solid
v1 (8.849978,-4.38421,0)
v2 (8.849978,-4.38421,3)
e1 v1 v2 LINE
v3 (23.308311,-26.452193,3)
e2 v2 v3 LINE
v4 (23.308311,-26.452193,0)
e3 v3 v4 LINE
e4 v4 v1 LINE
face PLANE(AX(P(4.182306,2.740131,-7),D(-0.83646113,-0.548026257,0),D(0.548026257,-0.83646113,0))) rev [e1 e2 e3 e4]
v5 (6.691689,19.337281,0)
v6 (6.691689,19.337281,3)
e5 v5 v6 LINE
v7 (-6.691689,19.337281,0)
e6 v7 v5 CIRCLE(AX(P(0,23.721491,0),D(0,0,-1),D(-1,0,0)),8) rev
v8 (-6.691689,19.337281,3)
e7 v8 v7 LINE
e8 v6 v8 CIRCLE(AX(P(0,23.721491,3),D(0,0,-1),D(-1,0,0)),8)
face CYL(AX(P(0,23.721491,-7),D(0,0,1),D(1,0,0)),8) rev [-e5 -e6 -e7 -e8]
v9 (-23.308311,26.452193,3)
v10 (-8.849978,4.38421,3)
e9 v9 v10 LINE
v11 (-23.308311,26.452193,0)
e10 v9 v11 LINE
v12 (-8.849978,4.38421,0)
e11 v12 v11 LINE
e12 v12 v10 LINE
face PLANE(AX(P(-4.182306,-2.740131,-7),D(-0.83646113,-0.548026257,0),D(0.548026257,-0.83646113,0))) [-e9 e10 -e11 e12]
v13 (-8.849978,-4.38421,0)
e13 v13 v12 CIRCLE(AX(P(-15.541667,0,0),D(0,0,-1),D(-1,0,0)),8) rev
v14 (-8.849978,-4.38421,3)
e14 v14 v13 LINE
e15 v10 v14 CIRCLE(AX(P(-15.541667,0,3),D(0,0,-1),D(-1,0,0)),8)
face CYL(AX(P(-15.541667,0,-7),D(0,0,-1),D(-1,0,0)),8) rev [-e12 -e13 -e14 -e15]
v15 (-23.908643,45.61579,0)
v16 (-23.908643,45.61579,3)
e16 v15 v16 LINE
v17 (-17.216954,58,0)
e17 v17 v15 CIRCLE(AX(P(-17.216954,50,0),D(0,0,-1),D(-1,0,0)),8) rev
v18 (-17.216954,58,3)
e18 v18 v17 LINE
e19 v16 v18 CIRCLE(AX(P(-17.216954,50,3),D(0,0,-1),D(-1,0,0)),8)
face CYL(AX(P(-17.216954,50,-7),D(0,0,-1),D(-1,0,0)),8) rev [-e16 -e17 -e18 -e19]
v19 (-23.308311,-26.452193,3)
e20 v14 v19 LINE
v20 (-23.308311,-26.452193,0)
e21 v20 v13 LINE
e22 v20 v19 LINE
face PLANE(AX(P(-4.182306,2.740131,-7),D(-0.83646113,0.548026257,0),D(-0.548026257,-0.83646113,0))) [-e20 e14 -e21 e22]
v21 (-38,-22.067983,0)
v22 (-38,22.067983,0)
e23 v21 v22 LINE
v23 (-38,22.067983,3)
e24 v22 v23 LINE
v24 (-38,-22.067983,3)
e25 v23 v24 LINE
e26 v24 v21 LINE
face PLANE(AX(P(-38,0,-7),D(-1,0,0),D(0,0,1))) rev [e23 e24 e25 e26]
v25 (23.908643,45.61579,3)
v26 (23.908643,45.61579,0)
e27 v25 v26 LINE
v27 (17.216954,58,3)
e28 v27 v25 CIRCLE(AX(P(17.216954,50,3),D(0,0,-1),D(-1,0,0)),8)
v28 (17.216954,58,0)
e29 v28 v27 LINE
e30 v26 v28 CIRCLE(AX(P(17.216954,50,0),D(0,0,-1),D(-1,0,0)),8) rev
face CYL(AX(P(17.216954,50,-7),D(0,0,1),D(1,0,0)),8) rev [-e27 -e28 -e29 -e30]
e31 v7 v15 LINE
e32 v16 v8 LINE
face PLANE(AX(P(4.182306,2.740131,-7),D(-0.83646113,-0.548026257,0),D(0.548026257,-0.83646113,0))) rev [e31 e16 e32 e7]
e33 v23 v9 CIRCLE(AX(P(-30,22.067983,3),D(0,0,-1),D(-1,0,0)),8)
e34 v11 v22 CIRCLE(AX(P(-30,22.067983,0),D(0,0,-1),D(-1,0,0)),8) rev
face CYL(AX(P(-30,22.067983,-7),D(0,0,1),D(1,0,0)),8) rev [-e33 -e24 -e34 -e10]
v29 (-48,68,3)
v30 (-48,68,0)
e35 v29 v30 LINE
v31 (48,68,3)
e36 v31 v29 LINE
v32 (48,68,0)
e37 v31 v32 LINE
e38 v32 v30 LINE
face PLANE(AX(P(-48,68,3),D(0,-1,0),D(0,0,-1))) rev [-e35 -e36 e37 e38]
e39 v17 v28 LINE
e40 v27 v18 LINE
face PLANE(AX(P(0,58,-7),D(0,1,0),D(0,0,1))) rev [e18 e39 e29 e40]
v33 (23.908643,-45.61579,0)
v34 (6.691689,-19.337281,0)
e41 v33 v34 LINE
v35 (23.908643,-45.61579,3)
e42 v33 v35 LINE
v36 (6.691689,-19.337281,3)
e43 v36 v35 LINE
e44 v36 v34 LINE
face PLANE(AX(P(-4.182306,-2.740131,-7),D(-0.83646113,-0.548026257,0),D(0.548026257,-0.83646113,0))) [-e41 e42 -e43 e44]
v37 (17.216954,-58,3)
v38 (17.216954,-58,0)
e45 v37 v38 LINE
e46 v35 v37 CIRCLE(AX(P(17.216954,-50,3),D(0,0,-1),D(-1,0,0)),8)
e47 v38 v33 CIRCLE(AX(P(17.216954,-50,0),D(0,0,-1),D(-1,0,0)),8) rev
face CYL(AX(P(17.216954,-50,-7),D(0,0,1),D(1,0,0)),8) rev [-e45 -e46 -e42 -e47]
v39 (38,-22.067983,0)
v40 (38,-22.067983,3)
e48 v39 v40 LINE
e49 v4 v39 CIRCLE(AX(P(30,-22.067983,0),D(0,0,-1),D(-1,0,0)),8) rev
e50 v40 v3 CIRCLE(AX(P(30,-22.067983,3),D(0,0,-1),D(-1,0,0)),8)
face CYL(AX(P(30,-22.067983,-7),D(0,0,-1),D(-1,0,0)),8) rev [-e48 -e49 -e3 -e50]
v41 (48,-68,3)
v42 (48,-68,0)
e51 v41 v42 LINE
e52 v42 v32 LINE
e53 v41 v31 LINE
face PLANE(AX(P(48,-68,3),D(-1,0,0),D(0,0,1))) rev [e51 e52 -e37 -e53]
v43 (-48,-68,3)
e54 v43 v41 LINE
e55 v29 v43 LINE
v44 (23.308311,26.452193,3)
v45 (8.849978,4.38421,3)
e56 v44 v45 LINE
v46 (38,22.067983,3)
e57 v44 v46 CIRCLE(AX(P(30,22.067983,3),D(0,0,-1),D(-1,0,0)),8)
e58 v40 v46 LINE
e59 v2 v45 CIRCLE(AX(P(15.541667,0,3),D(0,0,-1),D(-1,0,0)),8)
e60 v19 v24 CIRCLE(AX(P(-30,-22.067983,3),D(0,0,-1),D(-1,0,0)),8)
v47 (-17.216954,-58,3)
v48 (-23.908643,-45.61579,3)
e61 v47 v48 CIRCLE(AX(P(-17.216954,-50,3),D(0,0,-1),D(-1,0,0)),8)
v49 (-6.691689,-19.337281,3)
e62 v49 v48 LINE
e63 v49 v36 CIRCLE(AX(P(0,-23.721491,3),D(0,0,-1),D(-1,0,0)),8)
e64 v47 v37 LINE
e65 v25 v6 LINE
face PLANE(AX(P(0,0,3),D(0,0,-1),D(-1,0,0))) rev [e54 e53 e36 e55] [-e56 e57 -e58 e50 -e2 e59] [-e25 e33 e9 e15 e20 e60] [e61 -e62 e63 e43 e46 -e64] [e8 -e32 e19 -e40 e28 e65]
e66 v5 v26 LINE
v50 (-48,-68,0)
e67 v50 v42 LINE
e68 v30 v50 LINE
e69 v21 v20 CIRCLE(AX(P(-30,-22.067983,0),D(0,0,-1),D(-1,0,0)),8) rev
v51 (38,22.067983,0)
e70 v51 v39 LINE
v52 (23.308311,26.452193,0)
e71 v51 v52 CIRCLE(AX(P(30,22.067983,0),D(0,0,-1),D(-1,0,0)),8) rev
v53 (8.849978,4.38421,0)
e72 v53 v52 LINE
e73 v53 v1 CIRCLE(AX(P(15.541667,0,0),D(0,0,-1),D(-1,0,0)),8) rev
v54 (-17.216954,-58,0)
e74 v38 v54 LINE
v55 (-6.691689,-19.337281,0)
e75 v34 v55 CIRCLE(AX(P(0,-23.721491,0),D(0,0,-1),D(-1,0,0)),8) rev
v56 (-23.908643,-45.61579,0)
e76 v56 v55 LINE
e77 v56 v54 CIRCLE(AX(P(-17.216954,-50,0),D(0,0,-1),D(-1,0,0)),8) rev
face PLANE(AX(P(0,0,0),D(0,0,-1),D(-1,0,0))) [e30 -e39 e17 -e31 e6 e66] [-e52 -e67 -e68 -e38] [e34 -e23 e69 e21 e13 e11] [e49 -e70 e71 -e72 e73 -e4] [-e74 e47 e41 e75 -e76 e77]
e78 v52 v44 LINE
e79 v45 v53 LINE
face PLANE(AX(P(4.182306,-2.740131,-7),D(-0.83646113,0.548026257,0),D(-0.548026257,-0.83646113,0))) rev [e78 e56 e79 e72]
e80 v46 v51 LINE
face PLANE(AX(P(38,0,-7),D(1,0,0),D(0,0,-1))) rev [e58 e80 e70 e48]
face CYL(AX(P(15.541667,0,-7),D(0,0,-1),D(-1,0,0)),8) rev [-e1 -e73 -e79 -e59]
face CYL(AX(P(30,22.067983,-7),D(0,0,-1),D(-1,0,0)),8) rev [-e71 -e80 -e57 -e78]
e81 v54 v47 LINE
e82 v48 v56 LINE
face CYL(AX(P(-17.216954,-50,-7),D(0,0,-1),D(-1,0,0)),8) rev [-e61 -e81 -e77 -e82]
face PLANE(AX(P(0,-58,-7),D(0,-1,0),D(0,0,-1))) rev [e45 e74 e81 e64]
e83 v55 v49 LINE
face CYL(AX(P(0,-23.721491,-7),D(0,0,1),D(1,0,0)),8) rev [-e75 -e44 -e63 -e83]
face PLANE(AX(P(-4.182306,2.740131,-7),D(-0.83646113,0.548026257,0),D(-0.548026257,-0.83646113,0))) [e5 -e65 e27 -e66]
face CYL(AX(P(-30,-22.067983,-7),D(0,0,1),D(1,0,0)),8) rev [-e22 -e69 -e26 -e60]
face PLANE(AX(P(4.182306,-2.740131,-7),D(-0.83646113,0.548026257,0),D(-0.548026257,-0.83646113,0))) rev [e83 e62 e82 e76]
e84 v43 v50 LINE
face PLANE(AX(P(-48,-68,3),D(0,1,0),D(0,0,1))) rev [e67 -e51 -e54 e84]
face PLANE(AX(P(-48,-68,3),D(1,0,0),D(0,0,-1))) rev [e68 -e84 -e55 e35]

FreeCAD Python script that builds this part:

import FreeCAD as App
import Part
import Sketcher

V = App.Vector


def edges_at(feature, points):
    """Names of the edges that pass closest to the given points."""
    edges = feature.Shape.Edges
    near = lambda p: min(range(len(edges)), key=lambda i: edges[i].distToShape(Part.Vertex(*p))[0])
    return sorted({f"Edge{near(p) + 1}" for p in points})


def add_polygon(sketch, points):
    """Adds a closed chain of lines whose ends are joined by coincident constraints."""
    first, n = sketch.GeometryCount, len(points)
    for a, b in zip(points, points[1:] + points[:1]):
        sketch.addGeometry(Part.LineSegment(App.Vector(*a, 0), App.Vector(*b, 0)), False)
    for i in range(n):
        sketch.addConstraint(Sketcher.Constraint("Coincident", first + i, 2, first + (i + 1) % n, 1))

doc = App.newDocument("Part")
body = doc.addObject("PartDesign::Body", "Body")

# Sketch on XY plane
sketch1 = body.newObject("Sketcher::SketchObject", "Sketch")
sketch1.AttachmentSupport = (doc.getObject("XY_Plane"), [""])
sketch1.MapMode = "FlatFace"
add_polygon(sketch1, [(-48, 68), (-48, -68), (48, -68), (48, 68)])  # lines 0-3
sketch1.addConstraint(Sketcher.Constraint("Vertical", 0))
sketch1.addConstraint(Sketcher.Constraint("Horizontal", 1))
sketch1.addConstraint(Sketcher.Constraint("Vertical", 2))
sketch1.addConstraint(Sketcher.Constraint("Horizontal", 3))
sketch1.addConstraint(Sketcher.Constraint("Symmetric", 0, 2, 2, 2, -1, 1))
sketch1.addConstraint(Sketcher.Constraint("DistanceX", 1, 1, 1, 2, 96.0))
sketch1.addConstraint(Sketcher.Constraint("DistanceY", 0, 2, 0, 1, 136.0))
pad1 = body.newObject("PartDesign::Pad", "Pad")
pad1.Profile = sketch1
pad1.Length = 3

# Sketch on XY plane
sketch2 = body.newObject("Sketcher::SketchObject", "Sketch001")
sketch2.AttachmentSupport = (doc.getObject("XY_Plane"), [""])
sketch2.MapMode = "FlatFace"
sketch2.AttachmentOffset = App.Placement(V(0, 0, 3), App.Rotation())
add_polygon(sketch2, [(-38, -49), (-6, 0), (-38, 49)])  # lines 0-2
add_polygon(sketch2, [(0, 9), (32, 58), (-32, 58)])  # lines 3-5
add_polygon(sketch2, [(38, -49), (38, 49), (6, 0)])  # lines 6-8
add_polygon(sketch2, [(32, -58), (0, -9), (-32, -58)])  # lines 9-11
sketch2.addConstraint(Sketcher.Constraint("Vertical", 2))
sketch2.addConstraint(Sketcher.Constraint("Horizontal", 4))
sketch2.addConstraint(Sketcher.Constraint("Vertical", 6))
sketch2.addConstraint(Sketcher.Constraint("Horizontal", 11))
sketch2.addConstraint(Sketcher.Constraint("Symmetric", 2, 2, 6, 2, -1, 1))
sketch2.addConstraint(Sketcher.Constraint("Symmetric", 0, 2, 7, 2, -1, 1))
sketch2.addConstraint(Sketcher.Constraint("Symmetric", 5, 2, 9, 2, -1, 1))
sketch2.addConstraint(Sketcher.Constraint("Symmetric", 3, 2, 10, 2, -1, 1))
sketch2.addConstraint(Sketcher.Constraint("PointOnObject", 0, 2, -1))
sketch2.addConstraint(Sketcher.Constraint("PointOnObject", 5, 2, -2))
sketch2.addConstraint(Sketcher.Constraint("Parallel", 0, 3))
sketch2.addConstraint(Sketcher.Constraint("Parallel", 1, 5))
sketch2.addConstraint(Sketcher.Constraint("Parallel", 5, 8))
sketch2.addConstraint(Sketcher.Constraint("Parallel", 8, 9))
sketch2.addConstraint(Sketcher.Constraint("Horizontal", 1, 2, 6, 2))
sketch2.addConstraint(Sketcher.Constraint("Equal", 1, 3))
sketch2.addConstraint(Sketcher.Constraint("DistanceX", 1, 2, -1, 1, 38.0))
sketch2.addConstraint(Sketcher.Constraint("DistanceY", -1, 1, 3, 2, 58.0))
sketch2.addConstraint(Sketcher.Constraint("DistanceY", 2, 2, 2, 1, 97.752699))
sketch2.addConstraint(Sketcher.Constraint("DistanceX", 4, 2, 4, 1, 64.044872))
pocket1 = body.newObject("PartDesign::Pocket", "Pocket")
pocket1.Profile = sketch2
pocket1.Length = 10
doc.recompute()

fillet = body.newObject("PartDesign::Fillet", "Fillet")
fillet.Base = (pocket1, edges_at(pocket1, [
    (38, 48.876, 1.5),
    (38, -48.876, 1.5),
    (5.978, 0, 1.5),
    (-32.022, 58, 1.5),
    (32.022, 58, 1.5),
    (0, 9.124, 1.5),
    (0, -9.124, 1.5),
    (32.022, -58, 1.5),
    (-32.022, -58, 1.5),
    (-38, 48.876, 1.5),
    (-5.978, 0, 1.5),
    (-38, -48.876, 1.5),
]))
fillet.Radius = 8

doc.recompute()
